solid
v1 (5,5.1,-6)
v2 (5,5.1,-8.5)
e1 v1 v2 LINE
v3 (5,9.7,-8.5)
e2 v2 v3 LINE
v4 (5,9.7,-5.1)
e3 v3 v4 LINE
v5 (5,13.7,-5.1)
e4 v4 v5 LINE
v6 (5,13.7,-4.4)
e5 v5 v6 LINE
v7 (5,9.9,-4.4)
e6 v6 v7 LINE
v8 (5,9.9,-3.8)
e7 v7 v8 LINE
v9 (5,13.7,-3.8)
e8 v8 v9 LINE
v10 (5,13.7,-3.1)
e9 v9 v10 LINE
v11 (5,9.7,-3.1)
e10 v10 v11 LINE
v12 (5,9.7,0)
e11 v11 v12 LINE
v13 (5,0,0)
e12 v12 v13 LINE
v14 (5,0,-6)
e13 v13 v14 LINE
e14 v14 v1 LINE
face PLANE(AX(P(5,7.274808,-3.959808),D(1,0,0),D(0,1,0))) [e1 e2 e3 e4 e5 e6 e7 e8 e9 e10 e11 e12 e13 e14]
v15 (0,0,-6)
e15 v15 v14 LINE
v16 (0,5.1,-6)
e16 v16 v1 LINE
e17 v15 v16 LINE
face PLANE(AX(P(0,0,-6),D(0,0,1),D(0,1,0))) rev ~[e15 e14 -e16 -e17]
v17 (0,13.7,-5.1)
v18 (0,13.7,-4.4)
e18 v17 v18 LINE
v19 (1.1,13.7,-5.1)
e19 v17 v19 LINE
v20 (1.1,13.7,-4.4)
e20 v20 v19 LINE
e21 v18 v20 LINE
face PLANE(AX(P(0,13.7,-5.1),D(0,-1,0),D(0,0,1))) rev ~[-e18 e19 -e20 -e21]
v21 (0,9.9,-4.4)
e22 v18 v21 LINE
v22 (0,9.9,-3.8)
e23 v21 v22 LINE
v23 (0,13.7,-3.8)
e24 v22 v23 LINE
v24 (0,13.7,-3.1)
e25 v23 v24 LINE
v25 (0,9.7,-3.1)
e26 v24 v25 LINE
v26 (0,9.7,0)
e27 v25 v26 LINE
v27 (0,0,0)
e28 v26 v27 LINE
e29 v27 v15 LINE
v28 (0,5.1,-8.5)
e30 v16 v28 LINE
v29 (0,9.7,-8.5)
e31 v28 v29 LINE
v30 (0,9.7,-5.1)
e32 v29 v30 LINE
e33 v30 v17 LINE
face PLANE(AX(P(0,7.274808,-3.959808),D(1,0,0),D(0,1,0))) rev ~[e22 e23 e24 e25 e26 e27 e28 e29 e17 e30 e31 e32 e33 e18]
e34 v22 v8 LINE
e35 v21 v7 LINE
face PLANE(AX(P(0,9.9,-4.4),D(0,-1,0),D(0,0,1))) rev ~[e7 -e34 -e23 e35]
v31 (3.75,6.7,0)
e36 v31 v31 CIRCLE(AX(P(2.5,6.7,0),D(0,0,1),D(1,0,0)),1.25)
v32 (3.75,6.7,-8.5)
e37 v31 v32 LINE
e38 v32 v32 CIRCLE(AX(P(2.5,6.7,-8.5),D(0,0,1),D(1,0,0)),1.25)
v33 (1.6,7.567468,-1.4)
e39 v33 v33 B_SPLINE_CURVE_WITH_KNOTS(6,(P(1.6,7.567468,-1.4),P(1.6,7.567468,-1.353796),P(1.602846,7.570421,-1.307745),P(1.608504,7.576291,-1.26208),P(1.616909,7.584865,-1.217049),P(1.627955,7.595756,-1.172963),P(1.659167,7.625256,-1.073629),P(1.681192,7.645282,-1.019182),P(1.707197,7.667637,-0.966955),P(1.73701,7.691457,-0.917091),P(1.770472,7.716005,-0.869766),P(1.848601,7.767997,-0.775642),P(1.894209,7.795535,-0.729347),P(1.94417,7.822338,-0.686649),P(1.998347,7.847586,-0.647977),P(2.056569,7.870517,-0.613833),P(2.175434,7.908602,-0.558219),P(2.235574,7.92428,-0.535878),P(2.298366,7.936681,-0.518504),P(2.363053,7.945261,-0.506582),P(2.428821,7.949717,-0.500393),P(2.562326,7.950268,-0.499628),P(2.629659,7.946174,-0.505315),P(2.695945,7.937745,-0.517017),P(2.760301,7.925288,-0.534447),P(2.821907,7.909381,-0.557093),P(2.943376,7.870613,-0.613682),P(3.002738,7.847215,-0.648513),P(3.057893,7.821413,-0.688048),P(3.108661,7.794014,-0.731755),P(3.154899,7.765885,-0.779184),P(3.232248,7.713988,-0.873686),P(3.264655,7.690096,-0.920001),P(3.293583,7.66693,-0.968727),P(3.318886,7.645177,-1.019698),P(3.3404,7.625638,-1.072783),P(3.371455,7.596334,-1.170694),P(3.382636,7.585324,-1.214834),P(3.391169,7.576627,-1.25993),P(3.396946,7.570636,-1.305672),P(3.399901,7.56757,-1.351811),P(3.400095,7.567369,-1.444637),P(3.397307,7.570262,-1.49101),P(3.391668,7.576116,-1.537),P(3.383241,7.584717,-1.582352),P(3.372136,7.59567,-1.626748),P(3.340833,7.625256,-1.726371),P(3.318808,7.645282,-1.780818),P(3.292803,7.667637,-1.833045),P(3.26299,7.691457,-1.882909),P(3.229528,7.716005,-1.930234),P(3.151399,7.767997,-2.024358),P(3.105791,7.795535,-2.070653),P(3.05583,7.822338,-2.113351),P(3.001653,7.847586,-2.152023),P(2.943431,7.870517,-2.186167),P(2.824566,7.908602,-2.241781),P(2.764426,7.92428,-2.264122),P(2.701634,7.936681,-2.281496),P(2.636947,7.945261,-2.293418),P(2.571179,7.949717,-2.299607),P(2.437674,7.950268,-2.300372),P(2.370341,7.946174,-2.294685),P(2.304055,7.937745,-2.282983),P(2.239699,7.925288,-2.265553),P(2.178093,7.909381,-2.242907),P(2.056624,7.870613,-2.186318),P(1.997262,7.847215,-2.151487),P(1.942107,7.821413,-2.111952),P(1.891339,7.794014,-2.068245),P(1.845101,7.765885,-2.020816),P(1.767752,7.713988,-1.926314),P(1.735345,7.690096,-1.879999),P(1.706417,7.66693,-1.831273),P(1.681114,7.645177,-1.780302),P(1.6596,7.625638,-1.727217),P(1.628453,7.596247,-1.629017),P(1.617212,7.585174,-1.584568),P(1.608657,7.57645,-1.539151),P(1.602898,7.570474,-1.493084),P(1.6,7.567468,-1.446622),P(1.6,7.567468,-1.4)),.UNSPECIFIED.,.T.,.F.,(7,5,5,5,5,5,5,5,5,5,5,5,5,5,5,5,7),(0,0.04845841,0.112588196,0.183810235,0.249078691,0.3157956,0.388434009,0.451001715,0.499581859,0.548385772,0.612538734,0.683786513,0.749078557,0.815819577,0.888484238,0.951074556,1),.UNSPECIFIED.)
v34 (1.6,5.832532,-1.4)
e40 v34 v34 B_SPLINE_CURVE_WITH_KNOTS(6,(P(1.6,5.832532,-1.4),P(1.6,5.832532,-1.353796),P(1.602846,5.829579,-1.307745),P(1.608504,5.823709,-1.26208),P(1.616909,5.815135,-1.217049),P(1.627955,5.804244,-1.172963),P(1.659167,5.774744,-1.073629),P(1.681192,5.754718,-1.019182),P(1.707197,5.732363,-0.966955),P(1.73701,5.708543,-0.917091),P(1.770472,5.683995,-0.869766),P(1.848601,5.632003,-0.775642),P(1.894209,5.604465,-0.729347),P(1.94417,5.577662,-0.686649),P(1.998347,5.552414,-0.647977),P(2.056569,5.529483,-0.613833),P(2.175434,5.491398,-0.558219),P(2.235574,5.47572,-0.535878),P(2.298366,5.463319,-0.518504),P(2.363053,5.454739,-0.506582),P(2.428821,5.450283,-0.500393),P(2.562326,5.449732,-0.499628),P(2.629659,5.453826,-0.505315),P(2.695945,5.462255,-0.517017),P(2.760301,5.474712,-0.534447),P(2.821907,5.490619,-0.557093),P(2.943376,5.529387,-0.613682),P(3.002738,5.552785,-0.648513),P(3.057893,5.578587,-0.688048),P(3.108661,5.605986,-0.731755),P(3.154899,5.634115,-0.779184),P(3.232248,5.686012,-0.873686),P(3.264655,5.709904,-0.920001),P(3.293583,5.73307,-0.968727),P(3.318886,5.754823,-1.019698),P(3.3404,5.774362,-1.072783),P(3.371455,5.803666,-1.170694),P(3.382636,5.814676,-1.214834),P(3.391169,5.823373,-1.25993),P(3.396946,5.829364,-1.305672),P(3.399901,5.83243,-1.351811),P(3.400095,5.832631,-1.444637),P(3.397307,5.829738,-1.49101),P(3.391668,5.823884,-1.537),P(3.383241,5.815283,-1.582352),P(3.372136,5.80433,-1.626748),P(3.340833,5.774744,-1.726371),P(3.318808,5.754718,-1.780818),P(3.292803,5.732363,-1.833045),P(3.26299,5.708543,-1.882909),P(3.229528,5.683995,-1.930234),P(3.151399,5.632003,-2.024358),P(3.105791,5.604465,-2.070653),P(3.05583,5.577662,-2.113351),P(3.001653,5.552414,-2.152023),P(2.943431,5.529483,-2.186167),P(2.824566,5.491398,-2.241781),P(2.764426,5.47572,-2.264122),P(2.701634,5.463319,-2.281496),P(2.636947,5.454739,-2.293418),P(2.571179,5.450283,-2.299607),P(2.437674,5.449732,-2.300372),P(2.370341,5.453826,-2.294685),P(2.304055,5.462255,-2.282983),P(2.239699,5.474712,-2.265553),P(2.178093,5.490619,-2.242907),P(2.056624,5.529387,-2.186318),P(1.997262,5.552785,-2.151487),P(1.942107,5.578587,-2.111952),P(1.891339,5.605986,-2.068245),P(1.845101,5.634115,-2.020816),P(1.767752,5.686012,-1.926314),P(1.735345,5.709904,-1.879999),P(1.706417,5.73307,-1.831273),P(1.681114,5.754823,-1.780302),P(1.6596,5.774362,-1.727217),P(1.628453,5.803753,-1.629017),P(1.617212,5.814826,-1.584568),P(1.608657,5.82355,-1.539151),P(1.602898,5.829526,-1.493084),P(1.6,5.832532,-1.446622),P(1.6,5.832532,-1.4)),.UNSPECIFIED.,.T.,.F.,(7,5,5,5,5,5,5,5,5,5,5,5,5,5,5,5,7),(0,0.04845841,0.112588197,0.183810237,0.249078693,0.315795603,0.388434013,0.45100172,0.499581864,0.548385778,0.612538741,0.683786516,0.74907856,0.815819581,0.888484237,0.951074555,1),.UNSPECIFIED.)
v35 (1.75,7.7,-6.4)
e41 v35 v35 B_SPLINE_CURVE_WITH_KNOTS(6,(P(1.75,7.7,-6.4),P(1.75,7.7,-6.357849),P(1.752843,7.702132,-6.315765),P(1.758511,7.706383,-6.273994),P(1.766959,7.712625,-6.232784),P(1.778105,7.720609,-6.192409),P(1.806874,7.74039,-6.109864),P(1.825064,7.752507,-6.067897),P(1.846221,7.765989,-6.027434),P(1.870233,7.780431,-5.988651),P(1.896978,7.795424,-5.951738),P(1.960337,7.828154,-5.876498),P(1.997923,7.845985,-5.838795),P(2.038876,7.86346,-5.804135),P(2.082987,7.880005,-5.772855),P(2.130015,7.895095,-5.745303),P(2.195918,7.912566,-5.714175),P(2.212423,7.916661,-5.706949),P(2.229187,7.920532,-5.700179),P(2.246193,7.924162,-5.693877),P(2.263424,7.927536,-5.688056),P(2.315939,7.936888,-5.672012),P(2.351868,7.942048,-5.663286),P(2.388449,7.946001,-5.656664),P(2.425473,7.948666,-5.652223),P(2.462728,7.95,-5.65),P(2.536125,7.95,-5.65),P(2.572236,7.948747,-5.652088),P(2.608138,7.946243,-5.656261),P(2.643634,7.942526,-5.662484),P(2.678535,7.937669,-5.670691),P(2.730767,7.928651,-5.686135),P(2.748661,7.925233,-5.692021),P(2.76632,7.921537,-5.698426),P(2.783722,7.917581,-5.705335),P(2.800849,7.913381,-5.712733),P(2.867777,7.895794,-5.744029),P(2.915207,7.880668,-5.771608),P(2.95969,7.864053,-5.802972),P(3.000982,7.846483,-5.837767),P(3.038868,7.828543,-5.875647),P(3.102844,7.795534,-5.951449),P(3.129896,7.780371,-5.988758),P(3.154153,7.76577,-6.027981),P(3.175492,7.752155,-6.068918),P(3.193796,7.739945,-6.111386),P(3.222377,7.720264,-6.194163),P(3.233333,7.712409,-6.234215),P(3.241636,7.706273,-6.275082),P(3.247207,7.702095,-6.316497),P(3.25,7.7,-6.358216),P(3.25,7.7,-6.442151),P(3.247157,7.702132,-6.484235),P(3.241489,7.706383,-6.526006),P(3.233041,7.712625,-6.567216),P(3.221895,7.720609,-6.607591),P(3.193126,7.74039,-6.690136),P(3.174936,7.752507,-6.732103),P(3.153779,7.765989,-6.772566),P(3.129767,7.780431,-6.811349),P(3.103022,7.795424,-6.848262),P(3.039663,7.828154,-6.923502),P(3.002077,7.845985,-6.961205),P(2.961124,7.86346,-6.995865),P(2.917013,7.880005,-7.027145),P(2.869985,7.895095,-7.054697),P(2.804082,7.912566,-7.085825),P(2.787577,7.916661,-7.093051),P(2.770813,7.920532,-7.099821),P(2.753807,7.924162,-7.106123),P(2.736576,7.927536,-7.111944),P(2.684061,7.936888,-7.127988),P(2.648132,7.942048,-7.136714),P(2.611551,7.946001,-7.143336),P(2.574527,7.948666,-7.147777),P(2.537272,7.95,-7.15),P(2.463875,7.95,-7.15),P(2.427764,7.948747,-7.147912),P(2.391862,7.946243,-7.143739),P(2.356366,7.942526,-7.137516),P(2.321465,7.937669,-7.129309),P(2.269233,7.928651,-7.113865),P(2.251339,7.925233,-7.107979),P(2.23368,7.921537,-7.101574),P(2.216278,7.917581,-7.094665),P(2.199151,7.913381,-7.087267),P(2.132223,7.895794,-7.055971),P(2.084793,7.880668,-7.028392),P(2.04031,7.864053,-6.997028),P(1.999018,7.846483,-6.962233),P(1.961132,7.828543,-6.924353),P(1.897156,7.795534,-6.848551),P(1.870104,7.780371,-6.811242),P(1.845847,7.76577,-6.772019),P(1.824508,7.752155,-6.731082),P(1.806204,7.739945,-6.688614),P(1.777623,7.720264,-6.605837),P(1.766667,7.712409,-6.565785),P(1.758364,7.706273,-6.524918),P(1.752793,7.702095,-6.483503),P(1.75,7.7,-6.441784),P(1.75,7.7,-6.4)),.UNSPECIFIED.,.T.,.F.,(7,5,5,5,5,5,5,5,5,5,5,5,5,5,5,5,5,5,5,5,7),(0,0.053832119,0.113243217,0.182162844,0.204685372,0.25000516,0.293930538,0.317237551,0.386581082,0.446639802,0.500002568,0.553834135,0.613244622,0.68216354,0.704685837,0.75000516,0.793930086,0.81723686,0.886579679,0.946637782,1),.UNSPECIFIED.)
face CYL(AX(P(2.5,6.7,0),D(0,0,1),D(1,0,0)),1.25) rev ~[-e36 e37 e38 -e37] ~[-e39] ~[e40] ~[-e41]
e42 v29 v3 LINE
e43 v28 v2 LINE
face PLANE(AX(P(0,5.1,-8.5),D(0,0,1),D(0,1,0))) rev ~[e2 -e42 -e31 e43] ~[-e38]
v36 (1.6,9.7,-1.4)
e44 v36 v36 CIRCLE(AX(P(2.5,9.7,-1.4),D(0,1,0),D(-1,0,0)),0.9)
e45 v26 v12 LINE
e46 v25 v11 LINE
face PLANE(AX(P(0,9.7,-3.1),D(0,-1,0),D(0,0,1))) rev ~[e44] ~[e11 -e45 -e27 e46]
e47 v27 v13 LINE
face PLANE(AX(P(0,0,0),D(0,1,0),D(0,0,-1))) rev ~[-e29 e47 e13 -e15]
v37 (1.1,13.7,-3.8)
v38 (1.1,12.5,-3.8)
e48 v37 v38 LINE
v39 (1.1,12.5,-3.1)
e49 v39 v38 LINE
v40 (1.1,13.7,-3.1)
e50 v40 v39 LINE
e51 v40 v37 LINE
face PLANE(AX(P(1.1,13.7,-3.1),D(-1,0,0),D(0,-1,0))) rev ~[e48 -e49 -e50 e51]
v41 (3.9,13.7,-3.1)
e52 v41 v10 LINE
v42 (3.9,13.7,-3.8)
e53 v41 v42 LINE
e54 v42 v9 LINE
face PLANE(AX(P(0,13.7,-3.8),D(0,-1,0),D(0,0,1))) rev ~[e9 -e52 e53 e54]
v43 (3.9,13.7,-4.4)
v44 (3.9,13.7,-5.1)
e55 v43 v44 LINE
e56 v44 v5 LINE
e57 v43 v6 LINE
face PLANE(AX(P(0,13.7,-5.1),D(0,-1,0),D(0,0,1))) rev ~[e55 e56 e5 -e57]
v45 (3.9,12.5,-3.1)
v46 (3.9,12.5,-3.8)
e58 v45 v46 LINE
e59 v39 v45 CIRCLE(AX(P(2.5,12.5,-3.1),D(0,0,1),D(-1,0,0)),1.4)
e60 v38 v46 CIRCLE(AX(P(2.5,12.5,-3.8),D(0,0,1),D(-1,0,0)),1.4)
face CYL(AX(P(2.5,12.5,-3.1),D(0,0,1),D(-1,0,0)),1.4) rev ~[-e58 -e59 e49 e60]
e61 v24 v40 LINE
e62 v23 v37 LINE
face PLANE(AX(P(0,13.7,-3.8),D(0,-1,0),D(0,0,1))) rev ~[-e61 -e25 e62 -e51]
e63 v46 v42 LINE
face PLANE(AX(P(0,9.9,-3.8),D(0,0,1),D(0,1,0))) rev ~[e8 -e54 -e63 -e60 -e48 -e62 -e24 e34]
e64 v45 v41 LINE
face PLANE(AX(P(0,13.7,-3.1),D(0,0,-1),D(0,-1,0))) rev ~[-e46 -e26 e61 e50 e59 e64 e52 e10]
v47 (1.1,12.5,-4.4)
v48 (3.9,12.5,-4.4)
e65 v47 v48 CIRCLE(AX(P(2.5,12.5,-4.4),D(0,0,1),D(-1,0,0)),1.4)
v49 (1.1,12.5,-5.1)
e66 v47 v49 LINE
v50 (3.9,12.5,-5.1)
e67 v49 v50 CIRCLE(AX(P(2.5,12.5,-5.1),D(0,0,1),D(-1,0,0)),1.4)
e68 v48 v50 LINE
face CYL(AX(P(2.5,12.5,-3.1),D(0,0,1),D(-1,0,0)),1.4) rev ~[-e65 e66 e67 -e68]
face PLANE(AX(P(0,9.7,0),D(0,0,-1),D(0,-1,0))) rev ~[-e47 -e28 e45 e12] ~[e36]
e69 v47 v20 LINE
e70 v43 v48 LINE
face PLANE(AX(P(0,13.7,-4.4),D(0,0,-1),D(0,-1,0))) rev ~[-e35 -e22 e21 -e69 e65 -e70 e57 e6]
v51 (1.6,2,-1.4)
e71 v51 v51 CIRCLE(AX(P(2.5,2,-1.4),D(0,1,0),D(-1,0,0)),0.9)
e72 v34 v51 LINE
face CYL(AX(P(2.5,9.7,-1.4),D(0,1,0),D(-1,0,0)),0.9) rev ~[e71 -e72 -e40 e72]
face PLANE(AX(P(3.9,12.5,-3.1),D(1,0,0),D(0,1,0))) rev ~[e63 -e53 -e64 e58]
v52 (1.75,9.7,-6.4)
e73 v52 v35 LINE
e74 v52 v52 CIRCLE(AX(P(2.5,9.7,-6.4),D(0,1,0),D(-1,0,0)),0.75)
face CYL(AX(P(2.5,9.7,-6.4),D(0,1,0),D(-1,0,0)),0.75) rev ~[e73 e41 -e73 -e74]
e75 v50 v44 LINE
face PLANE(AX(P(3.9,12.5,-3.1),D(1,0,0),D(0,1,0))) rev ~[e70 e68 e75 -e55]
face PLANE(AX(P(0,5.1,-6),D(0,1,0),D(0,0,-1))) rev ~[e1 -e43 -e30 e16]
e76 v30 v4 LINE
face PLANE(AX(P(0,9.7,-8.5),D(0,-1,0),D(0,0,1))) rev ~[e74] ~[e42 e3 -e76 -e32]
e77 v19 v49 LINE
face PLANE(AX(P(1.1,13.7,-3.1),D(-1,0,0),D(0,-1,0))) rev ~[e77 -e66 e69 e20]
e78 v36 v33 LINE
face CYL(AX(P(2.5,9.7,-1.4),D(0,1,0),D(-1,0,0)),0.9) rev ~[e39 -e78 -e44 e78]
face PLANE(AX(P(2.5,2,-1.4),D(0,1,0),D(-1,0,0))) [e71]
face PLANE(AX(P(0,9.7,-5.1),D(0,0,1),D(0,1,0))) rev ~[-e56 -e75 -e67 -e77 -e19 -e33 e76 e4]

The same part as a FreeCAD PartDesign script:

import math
import FreeCAD as App
import Part
import Sketcher
from FreeCAD import Vector
Q = App.Units.Quantity

doc = App.newDocument("Part")
body = doc.addObject("PartDesign::Body", "Body")

# Sketch on YZ plane
sketch1 = body.newObject("Sketcher::SketchObject", "Sketch")
sketch1.AttachmentSupport = (doc.getObject("YZ_Plane"), [""])
sketch1.MapMode = "FlatFace"
sketch1.addGeometry([
    Part.LineSegment(Vector(9.7, 0, 0), Vector(0, 0, 0)),  # 0
    Part.LineSegment(Vector(0, 0, 0), Vector(0, -6, 0)),  # 1
    Part.LineSegment(Vector(0, -6, 0), Vector(5.1, -6, 0)),  # 2
    Part.LineSegment(Vector(5.1, -6, 0), Vector(5.1, -8.5, 0)),  # 3
    Part.LineSegment(Vector(5.1, -8.5, 0), Vector(9.7, -8.5, 0)),  # 4
    Part.LineSegment(Vector(9.7, -8.5, 0), Vector(9.7, -5.1, 0)),  # 5
    Part.LineSegment(Vector(9.7, -5.1, 0), Vector(13.7, -5.1, 0)),  # 6
    Part.LineSegment(Vector(13.7, -5.1, 0), Vector(13.7, -4.4, 0)),  # 7
    Part.LineSegment(Vector(13.7, -4.4, 0), Vector(9.9, -4.4, 0)),  # 8
    Part.LineSegment(Vector(9.9, -4.4, 0), Vector(9.9, -3.8, 0)),  # 9
    Part.LineSegment(Vector(9.9, -3.8, 0), Vector(13.7, -3.8, 0)),  # 10
    Part.LineSegment(Vector(13.7, -3.8, 0), Vector(13.7, -3.1, 0)),  # 11
    Part.LineSegment(Vector(13.7, -3.1, 0), Vector(9.7, -3.1, 0)),  # 12
    Part.LineSegment(Vector(9.7, -3.1, 0), Vector(9.7, 0, 0)),  # 13
], False)
sketch1.addConstraint([
    Sketcher.Constraint("Coincident", 0, 2, 1, 1),
    Sketcher.Constraint("Coincident", 1, 2, 2, 1),
    Sketcher.Constraint("Coincident", 2, 2, 3, 1),
    Sketcher.Constraint("Coincident", 3, 2, 4, 1),
    Sketcher.Constraint("Coincident", 4, 2, 5, 1),
    Sketcher.Constraint("Coincident", 5, 2, 6, 1),
    Sketcher.Constraint("Coincident", 6, 2, 7, 1),
    Sketcher.Constraint("Coincident", 7, 2, 8, 1),
    Sketcher.Constraint("Coincident", 8, 2, 9, 1),
    Sketcher.Constraint("Coincident", 9, 2, 10, 1),
    Sketcher.Constraint("Coincident", 10, 2, 11, 1),
    Sketcher.Constraint("Coincident", 11, 2, 12, 1),
    Sketcher.Constraint("Coincident", 12, 2, 13, 1),
    Sketcher.Constraint("Coincident", 13, 2, 0, 1),
    Sketcher.Constraint("Horizontal", 0),
    Sketcher.Constraint("Vertical", 1),
    Sketcher.Constraint("Horizontal", 2),
    Sketcher.Constraint("Vertical", 3),
    Sketcher.Constraint("Horizontal", 4),
    Sketcher.Constraint("Vertical", 5),
    Sketcher.Constraint("Horizontal", 6),
    Sketcher.Constraint("Vertical", 7),
    Sketcher.Constraint("Horizontal", 8),
    Sketcher.Constraint("Vertical", 9),
    Sketcher.Constraint("Horizontal", 10),
    Sketcher.Constraint("Vertical", 11),
    Sketcher.Constraint("Horizontal", 12),
    Sketcher.Constraint("Vertical", 13),
    Sketcher.Constraint("Coincident", 0, 2, -1, 1),
    Sketcher.Constraint("Vertical", 7, 2, 10, 2),
    Sketcher.Constraint("Vertical", 5, 2, 12, 2),
    Sketcher.Constraint("Equal", 7, 11),
    Sketcher.Constraint("DistanceX", 6, 1, 6, 2, Q("4 mm")),
    Sketcher.Constraint("DistanceY", 1, 2, 1, 1, Q("6 mm")),
    Sketcher.Constraint("DistanceX", 0, 2, 0, 1, Q("9.7 mm")),
    Sketcher.Constraint("DistanceX", 2, 1, 2, 2, Q("5.1 mm")),
    Sketcher.Constraint("DistanceX", 8, 2, 8, 1, Q("3.8 mm")),
    Sketcher.Constraint("DistanceY", 3, 2, 3, 1, Q("2.5 mm")),
    Sketcher.Constraint("DistanceY", 5, 1, 5, 2, Q("3.4 mm")),
    Sketcher.Constraint("DistanceY", 7, 1, 7, 2, Q("0.7 mm")),
    Sketcher.Constraint("DistanceY", 9, 1, 9, 2, Q("0.6 mm")),
])
pad1 = body.newObject("PartDesign::Pad", "Pad")
pad1.Profile = sketch1
pad1.Length = 5

# Sketch on XY plane
sketch2 = body.newObject("Sketcher::SketchObject", "Sketch001")
sketch2.AttachmentSupport = (doc.getObject("XY_Plane"), [""])
sketch2.MapMode = "FlatFace"
sketch2.AttachmentOffset = App.Placement(Vector(0, 0, -3.1), App.Rotation())
sketch2.addGeometry([
    Part.LineSegment(Vector(1.1, 13.7, 0), Vector(1.1, 12.5, 0)),
    Part.ArcOfCircle(Part.Circle(Vector(2.5, 12.5, 0), Vector(0, 0, 1), 1.4), math.radians(180), math.radians(360)),
    Part.LineSegment(Vector(3.9, 12.5, 0), Vector(3.9, 13.7, 0)),
    Part.LineSegment(Vector(3.9, 13.7, 0), Vector(1.1, 13.7, 0)),
], False)
sketch2.addConstraint([
    Sketcher.Constraint("Tangent", 0, 2, 1, 1),
    Sketcher.Constraint("Tangent", 1, 2, 2, 1),
    Sketcher.Constraint("Coincident", 2, 2, 3, 1),
    Sketcher.Constraint("Coincident", 3, 2, 0, 1),
    Sketcher.Constraint("Vertical", 0),
    Sketcher.Constraint("Vertical", 2),
    Sketcher.Constraint("Horizontal", 3),
    Sketcher.Constraint("Radius", 1, Q("1.4 mm")),
    Sketcher.Constraint("DistanceY", 0, 2, 0, 1, Q("1.2 mm")),
    Sketcher.Constraint("DistanceX", -1, 1, 1, 3, Q("2.5 mm")),
    Sketcher.Constraint("DistanceY", -1, 1, 1, 3, Q("12.5 mm")),
])
pocket1 = body.newObject("PartDesign::Pocket", "Pocket")
pocket1.Profile = sketch2
pocket1.Type = "ThroughAll"

# Sketch on XY plane
sketch3 = body.newObject("Sketcher::SketchObject", "Sketch002")
sketch3.AttachmentSupport = (doc.getObject("XY_Plane"), [""])
sketch3.MapMode = "FlatFace"
sketch3.addGeometry(Part.Circle(Vector(2.5, 6.7, 0), Vector(0, 0, 1), 1.25), False)
sketch3.addConstraint([
    Sketcher.Constraint("Diameter", 0, Q("2.5 mm")),
    Sketcher.Constraint("DistanceX", -1, 1, 0, 3, Q("2.5 mm")),
    Sketcher.Constraint("DistanceY", -1, 1, 0, 3, Q("6.7 mm")),
])
pocket2 = body.newObject("PartDesign::Pocket", "Pocket001")
pocket2.Profile = sketch3
pocket2.Type = "ThroughAll"

# Sketch on XZ plane
sketch4 = body.newObject("Sketcher::SketchObject", "Sketch003")
sketch4.AttachmentSupport = (doc.getObject("XZ_Plane"), [""])
sketch4.MapMode = "FlatFace"
sketch4.AttachmentOffset = App.Placement(Vector(0, 0, -9.7), App.Rotation())
sketch4.addGeometry(Part.Circle(Vector(2.5, -1.4, 0), Vector(0, 0, 1), 0.9), False)
sketch4.addConstraint([
    Sketcher.Constraint("Diameter", 0, Q("1.8 mm")),
    Sketcher.Constraint("DistanceX", -1, 1, 0, 3, Q("2.5 mm")),
    Sketcher.Constraint("DistanceY", 0, 3, -1, 1, Q("1.4 mm")),
])
pocket3 = body.newObject("PartDesign::Pocket", "Pocket002")
pocket3.Profile = sketch4
pocket3.Length = 7.7
pocket3.Reversed = True

# Sketch on XZ plane
sketch5 = body.newObject("Sketcher::SketchObject", "Sketch004")
sketch5.AttachmentSupport = (doc.getObject("XZ_Plane"), [""])
sketch5.MapMode = "FlatFace"
sketch5.AttachmentOffset = App.Placement(Vector(0, 0, -9.7), App.Rotation())
sketch5.addGeometry(Part.Circle(Vector(2.5, -6.4, 0), Vector(0, 0, 1), 0.75), False)
sketch5.addConstraint([
    Sketcher.Constraint("Diameter", 0, Q("1.5 mm")),
    Sketcher.Constraint("DistanceX", -1, 1, 0, 3, Q("2.5 mm")),
    Sketcher.Constraint("DistanceY", 0, 3, -1, 1, Q("6.4 mm")),
])
pocket4 = body.newObject("PartDesign::Pocket", "Pocket003")
pocket4.Profile = sketch5
pocket4.Length = 2.001
pocket4.Reversed = True

doc.recompute()
